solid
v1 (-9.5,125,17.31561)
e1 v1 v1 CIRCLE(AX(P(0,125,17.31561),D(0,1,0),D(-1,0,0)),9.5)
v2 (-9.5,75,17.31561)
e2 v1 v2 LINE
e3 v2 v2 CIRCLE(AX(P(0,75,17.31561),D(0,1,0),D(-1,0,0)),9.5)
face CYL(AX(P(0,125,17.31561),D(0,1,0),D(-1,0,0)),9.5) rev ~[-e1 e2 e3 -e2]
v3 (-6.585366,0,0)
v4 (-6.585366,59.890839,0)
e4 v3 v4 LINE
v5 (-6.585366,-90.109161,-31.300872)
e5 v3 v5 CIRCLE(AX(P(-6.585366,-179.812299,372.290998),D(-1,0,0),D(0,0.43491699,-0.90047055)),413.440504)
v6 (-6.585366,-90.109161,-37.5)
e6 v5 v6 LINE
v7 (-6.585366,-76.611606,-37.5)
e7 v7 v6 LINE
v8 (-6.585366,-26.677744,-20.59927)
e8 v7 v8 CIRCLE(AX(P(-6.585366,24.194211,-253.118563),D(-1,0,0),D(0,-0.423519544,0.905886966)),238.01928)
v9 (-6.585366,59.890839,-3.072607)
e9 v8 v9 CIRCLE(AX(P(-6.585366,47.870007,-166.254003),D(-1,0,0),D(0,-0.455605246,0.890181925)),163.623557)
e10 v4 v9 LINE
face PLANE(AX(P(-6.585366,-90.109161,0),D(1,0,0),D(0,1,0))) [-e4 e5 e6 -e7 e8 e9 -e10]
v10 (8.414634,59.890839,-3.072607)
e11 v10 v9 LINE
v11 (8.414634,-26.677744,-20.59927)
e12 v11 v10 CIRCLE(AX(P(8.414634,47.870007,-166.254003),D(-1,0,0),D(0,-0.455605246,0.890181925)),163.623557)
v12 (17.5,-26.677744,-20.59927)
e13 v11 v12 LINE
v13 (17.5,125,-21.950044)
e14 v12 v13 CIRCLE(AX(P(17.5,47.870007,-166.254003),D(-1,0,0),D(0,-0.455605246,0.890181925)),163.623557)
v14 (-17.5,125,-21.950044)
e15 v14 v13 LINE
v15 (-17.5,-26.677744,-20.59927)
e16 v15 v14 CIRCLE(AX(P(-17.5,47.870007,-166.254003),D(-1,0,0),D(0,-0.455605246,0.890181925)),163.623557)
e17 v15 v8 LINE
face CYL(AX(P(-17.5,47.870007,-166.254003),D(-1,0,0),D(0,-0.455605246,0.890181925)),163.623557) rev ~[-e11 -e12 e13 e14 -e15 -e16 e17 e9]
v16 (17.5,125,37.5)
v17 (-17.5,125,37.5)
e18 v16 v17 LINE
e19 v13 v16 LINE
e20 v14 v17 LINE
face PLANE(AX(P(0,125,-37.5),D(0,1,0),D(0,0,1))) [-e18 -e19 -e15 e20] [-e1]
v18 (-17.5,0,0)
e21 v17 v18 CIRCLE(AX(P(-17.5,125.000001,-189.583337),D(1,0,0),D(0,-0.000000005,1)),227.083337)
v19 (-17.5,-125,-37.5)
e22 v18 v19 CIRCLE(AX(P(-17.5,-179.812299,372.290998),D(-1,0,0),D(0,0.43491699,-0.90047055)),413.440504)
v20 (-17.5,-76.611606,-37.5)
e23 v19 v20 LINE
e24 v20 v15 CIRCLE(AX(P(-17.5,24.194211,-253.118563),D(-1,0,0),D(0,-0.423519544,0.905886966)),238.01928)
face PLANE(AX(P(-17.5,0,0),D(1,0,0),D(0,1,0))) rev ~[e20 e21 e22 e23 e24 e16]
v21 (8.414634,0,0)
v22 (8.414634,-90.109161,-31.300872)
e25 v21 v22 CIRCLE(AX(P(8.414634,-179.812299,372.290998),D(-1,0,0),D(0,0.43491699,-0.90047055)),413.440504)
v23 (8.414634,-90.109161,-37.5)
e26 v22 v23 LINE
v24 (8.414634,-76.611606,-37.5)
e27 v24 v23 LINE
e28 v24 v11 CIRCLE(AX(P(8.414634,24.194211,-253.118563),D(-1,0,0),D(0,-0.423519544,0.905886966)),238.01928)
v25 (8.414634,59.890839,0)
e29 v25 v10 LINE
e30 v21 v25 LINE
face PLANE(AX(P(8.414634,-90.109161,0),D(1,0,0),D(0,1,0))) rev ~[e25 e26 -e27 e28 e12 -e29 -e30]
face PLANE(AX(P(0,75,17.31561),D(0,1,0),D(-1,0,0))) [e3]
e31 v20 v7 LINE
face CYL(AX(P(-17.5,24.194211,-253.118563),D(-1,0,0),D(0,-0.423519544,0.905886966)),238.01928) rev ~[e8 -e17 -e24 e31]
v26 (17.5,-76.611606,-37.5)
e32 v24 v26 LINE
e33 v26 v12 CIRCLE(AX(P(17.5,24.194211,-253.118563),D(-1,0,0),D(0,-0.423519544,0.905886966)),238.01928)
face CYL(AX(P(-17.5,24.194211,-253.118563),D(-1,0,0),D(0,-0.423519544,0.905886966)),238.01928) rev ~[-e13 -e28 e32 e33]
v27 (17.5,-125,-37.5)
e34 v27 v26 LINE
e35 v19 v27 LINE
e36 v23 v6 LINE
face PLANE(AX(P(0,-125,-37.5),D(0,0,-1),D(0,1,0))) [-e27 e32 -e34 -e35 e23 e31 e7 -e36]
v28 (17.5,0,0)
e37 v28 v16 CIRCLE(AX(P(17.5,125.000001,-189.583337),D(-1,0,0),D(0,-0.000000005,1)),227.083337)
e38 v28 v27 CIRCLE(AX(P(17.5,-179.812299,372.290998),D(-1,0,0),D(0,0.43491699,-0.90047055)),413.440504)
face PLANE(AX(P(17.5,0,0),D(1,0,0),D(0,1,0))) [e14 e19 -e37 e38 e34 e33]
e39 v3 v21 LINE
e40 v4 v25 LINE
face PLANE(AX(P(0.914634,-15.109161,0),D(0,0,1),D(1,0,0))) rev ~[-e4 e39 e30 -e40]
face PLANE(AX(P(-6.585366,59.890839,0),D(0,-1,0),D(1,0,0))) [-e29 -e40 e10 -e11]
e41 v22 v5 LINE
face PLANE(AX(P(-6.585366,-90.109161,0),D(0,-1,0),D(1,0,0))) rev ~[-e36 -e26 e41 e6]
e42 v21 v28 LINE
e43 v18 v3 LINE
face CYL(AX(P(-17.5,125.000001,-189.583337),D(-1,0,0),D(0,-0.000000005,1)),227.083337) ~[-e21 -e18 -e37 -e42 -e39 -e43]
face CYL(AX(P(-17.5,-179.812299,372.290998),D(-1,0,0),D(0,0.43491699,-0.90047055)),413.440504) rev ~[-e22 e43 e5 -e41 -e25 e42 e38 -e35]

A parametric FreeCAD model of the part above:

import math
import FreeCAD as App
import Part
import Sketcher
from FreeCAD import Vector
Q = App.Units.Quantity

doc = App.newDocument("Part")
body = doc.addObject("PartDesign::Body", "Body")

sketch1 = body.newObject("Sketcher::SketchObject", "Sketch")
sketch1.AttachmentSupport = (doc.getObject("YZ_Plane"), [""])
sketch1.MapMode = "FlatFace"
sketch1.addGeometry([
    Part.LineSegment(Vector(-125, 37.5, 0), Vector(-125, -37.5, 0)),
    Part.LineSegment(Vector(-125, -37.5, 0), Vector(125, -37.5, 0)),
    Part.LineSegment(Vector(125, -37.5, 0), Vector(125, 37.5, 0)),
    Part.LineSegment(Vector(125, 37.5, 0), Vector(-125, 37.5, 0)),
], False)
sketch1.addConstraint([
    Sketcher.Constraint("Coincident", 0, 2, 1, 1),
    Sketcher.Constraint("Coincident", 1, 2, 2, 1),
    Sketcher.Constraint("Coincident", 2, 2, 3, 1),
    Sketcher.Constraint("Coincident", 3, 2, 0, 1),
    Sketcher.Constraint("Vertical", 0),
    Sketcher.Constraint("Horizontal", 1),
    Sketcher.Constraint("Vertical", 2),
    Sketcher.Constraint("Horizontal", 3),
    Sketcher.Constraint("Symmetric", 0, 2, 2, 2, -1, 1),
    Sketcher.Constraint("DistanceX", 1, 1, 1, 2, Q("250 mm")),
    Sketcher.Constraint("DistanceY", 0, 2, 0, 1, Q("75 mm")),
])
pad1 = body.newObject("PartDesign::Pad", "Pad")
pad1.Profile = sketch1
pad1.Length = 35
pad1.Midplane = True

sketch2 = body.newObject("Sketcher::SketchObject", "Sketch001")
sketch2.AttachmentSupport = (doc.getObject("YZ_Plane"), [""])
sketch2.MapMode = "FlatFace"
sketch2.AttachmentOffset = App.Placement(Vector(0, 0, -17.5), App.Rotation())
sketch2.addGeometry([
    Part.ArcOfCircle(Part.Circle(Vector(125.000001, -189.583337, 0), Vector(0, 0, 1), 227.083337), math.radians(90), math.radians(123.398488)),
    Part.ArcOfCircle(Part.Circle(Vector(-179.812299, 372.290998, 0), Vector(0, 0, 1), 413.440504), math.radians(-82.381523), math.radians(-64.219988)),
    Part.LineSegment(Vector(-125, -37.5, 0), Vector(-125, 37.5, 0)),
    Part.LineSegment(Vector(-125, 37.5, 0), Vector(125, 37.5, 0)),
    Part.LineSegment(Vector(125, -37.5, 0), Vector(-76.611606, -37.5, 0)),
    Part.ArcOfCircle(Part.Circle(Vector(24.194211, -253.118563, 0), Vector(0, 0, 1), 238.01928), math.radians(102.341053), math.radians(115.056991)),
    Part.ArcOfCircle(Part.Circle(Vector(47.870007, -166.254003, 0), Vector(0, 0, 1), 163.623557), math.radians(61.875642), math.radians(117.103884)),
    Part.LineSegment(Vector(125, -21.950044, 0), Vector(125, -37.5, 0)),
], False)
sketch2.addConstraint([
    Sketcher.Constraint("Coincident", 0, 2, 1, 2),
    Sketcher.Constraint("Coincident", 1, 1, 2, 1),
    Sketcher.Constraint("Coincident", 2, 2, 3, 1),
    Sketcher.Constraint("Tangent", 3, 2, 0, 1),
    Sketcher.Constraint("Coincident", 4, 2, 5, 2),
    Sketcher.Constraint("Coincident", 5, 1, 6, 2),
    Sketcher.Constraint("Coincident", 6, 1, 7, 1),
    Sketcher.Constraint("Coincident", 7, 2, 4, 1),
    Sketcher.Constraint("Vertical", 2),
    Sketcher.Constraint("Horizontal", 3),
    Sketcher.Constraint("Horizontal", 4),
    Sketcher.Constraint("Vertical", 7),
    Sketcher.Constraint("Coincident", 0, 2, -1, 1),
    Sketcher.Constraint("Symmetric", 2, 2, 7, 2, -1, 1),
    Sketcher.Constraint("Horizontal", 1, 1, 4, 2),
    Sketcher.Constraint("Vertical", 3, 2, 6, 1),
    Sketcher.Constraint("DistanceX", 3, 1, 3, 2, Q("250 mm")),
    Sketcher.Constraint("DistanceY", 2, 1, 2, 2, Q("75 mm")),
    Sketcher.Constraint("Radius", 5, Q("238.01928 mm")),
    Sketcher.Constraint("Radius", 1, Q("413.440504 mm")),
    Sketcher.Constraint("Radius", 6, Q("163.623557 mm")),
    Sketcher.Constraint("DistanceY", 6, 3, 1, 3, Q("538.545001 mm")),
    Sketcher.Constraint("DistanceX", 4, 2, 4, 1, Q("201.611606 mm")),
    Sketcher.Constraint("DistanceY", 7, 2, 7, 1, Q("15.549956 mm")),
    Sketcher.Constraint("DistanceX", -1, 1, 5, 3, Q("24.194211 mm")),
])
pocket1 = body.newObject("PartDesign::Pocket", "Pocket")
pocket1.Profile = sketch2
pocket1.Type = "ThroughAll"
pocket1.Reversed = True

sketch3 = body.newObject("Sketcher::SketchObject", "Sketch002")
sketch3.AttachmentSupport = (doc.getObject("XZ_Plane"), [""])
sketch3.MapMode = "FlatFace"
sketch3.AttachmentOffset = App.Placement(Vector(0, 0, -125), App.Rotation())
sketch3.addGeometry(Part.Circle(Vector(0, 17.31561, 0), Vector(0, 0, 1), 9.5), False)
sketch3.addConstraint([
    Sketcher.Constraint("PointOnObject", 0, 3, -2),
    Sketcher.Constraint("Diameter", 0, Q("19 mm")),
    Sketcher.Constraint("DistanceY", -1, 1, 0, 3, Q("17.31561 mm")),
])
pocket2 = body.newObject("PartDesign::Pocket", "Pocket001")
pocket2.Profile = sketch3
pocket2.Length = 50
pocket2.Reversed = True

sketch4 = body.newObject("Sketcher::SketchObject", "Sketch003")
sketch4.AttachmentSupport = (doc.getObject("XY_Plane"), [""])
sketch4.MapMode = "FlatFace"
sketch4.addGeometry([
    Part.LineSegment(Vector(-6.585366, 59.890839, 0), Vector(-6.585366, -90.109161, 0)),
    Part.LineSegment(Vector(-6.585366, -90.109161, 0), Vector(8.414634, -90.109161, 0)),
    Part.LineSegment(Vector(8.414634, -90.109161, 0), Vector(8.414634, 59.890839, 0)),
    Part.LineSegment(Vector(8.414634, 59.890839, 0), Vector(-6.585366, 59.890839, 0)),
], False)
sketch4.addConstraint([
    Sketcher.Constraint("Coincident", 0, 2, 1, 1),
    Sketcher.Constraint("Coincident", 1, 2, 2, 1),
    Sketcher.Constraint("Coincident", 2, 2, 3, 1),
    Sketcher.Constraint("Coincident", 3, 2, 0, 1),
    Sketcher.Constraint("Vertical", 0),
    Sketcher.Constraint("Horizontal", 1),
    Sketcher.Constraint("Vertical", 2),
    Sketcher.Constraint("Horizontal", 3),
    Sketcher.Constraint("DistanceX", 1, 1, 1, 2, Q("15 mm")),
    Sketcher.Constraint("DistanceY", 0, 2, 0, 1, Q("150 mm")),
    Sketcher.Constraint("DistanceY", 0, 2, -1, 1, Q("90.109161 mm")),
    Sketcher.Constraint("DistanceX", 0, 2, -1, 1, Q("6.585366 mm")),
])
pocket3 = body.newObject("PartDesign::Pocket", "Pocket002")
pocket3.Profile = sketch4
pocket3.Type = "ThroughAll"

doc.recompute()
